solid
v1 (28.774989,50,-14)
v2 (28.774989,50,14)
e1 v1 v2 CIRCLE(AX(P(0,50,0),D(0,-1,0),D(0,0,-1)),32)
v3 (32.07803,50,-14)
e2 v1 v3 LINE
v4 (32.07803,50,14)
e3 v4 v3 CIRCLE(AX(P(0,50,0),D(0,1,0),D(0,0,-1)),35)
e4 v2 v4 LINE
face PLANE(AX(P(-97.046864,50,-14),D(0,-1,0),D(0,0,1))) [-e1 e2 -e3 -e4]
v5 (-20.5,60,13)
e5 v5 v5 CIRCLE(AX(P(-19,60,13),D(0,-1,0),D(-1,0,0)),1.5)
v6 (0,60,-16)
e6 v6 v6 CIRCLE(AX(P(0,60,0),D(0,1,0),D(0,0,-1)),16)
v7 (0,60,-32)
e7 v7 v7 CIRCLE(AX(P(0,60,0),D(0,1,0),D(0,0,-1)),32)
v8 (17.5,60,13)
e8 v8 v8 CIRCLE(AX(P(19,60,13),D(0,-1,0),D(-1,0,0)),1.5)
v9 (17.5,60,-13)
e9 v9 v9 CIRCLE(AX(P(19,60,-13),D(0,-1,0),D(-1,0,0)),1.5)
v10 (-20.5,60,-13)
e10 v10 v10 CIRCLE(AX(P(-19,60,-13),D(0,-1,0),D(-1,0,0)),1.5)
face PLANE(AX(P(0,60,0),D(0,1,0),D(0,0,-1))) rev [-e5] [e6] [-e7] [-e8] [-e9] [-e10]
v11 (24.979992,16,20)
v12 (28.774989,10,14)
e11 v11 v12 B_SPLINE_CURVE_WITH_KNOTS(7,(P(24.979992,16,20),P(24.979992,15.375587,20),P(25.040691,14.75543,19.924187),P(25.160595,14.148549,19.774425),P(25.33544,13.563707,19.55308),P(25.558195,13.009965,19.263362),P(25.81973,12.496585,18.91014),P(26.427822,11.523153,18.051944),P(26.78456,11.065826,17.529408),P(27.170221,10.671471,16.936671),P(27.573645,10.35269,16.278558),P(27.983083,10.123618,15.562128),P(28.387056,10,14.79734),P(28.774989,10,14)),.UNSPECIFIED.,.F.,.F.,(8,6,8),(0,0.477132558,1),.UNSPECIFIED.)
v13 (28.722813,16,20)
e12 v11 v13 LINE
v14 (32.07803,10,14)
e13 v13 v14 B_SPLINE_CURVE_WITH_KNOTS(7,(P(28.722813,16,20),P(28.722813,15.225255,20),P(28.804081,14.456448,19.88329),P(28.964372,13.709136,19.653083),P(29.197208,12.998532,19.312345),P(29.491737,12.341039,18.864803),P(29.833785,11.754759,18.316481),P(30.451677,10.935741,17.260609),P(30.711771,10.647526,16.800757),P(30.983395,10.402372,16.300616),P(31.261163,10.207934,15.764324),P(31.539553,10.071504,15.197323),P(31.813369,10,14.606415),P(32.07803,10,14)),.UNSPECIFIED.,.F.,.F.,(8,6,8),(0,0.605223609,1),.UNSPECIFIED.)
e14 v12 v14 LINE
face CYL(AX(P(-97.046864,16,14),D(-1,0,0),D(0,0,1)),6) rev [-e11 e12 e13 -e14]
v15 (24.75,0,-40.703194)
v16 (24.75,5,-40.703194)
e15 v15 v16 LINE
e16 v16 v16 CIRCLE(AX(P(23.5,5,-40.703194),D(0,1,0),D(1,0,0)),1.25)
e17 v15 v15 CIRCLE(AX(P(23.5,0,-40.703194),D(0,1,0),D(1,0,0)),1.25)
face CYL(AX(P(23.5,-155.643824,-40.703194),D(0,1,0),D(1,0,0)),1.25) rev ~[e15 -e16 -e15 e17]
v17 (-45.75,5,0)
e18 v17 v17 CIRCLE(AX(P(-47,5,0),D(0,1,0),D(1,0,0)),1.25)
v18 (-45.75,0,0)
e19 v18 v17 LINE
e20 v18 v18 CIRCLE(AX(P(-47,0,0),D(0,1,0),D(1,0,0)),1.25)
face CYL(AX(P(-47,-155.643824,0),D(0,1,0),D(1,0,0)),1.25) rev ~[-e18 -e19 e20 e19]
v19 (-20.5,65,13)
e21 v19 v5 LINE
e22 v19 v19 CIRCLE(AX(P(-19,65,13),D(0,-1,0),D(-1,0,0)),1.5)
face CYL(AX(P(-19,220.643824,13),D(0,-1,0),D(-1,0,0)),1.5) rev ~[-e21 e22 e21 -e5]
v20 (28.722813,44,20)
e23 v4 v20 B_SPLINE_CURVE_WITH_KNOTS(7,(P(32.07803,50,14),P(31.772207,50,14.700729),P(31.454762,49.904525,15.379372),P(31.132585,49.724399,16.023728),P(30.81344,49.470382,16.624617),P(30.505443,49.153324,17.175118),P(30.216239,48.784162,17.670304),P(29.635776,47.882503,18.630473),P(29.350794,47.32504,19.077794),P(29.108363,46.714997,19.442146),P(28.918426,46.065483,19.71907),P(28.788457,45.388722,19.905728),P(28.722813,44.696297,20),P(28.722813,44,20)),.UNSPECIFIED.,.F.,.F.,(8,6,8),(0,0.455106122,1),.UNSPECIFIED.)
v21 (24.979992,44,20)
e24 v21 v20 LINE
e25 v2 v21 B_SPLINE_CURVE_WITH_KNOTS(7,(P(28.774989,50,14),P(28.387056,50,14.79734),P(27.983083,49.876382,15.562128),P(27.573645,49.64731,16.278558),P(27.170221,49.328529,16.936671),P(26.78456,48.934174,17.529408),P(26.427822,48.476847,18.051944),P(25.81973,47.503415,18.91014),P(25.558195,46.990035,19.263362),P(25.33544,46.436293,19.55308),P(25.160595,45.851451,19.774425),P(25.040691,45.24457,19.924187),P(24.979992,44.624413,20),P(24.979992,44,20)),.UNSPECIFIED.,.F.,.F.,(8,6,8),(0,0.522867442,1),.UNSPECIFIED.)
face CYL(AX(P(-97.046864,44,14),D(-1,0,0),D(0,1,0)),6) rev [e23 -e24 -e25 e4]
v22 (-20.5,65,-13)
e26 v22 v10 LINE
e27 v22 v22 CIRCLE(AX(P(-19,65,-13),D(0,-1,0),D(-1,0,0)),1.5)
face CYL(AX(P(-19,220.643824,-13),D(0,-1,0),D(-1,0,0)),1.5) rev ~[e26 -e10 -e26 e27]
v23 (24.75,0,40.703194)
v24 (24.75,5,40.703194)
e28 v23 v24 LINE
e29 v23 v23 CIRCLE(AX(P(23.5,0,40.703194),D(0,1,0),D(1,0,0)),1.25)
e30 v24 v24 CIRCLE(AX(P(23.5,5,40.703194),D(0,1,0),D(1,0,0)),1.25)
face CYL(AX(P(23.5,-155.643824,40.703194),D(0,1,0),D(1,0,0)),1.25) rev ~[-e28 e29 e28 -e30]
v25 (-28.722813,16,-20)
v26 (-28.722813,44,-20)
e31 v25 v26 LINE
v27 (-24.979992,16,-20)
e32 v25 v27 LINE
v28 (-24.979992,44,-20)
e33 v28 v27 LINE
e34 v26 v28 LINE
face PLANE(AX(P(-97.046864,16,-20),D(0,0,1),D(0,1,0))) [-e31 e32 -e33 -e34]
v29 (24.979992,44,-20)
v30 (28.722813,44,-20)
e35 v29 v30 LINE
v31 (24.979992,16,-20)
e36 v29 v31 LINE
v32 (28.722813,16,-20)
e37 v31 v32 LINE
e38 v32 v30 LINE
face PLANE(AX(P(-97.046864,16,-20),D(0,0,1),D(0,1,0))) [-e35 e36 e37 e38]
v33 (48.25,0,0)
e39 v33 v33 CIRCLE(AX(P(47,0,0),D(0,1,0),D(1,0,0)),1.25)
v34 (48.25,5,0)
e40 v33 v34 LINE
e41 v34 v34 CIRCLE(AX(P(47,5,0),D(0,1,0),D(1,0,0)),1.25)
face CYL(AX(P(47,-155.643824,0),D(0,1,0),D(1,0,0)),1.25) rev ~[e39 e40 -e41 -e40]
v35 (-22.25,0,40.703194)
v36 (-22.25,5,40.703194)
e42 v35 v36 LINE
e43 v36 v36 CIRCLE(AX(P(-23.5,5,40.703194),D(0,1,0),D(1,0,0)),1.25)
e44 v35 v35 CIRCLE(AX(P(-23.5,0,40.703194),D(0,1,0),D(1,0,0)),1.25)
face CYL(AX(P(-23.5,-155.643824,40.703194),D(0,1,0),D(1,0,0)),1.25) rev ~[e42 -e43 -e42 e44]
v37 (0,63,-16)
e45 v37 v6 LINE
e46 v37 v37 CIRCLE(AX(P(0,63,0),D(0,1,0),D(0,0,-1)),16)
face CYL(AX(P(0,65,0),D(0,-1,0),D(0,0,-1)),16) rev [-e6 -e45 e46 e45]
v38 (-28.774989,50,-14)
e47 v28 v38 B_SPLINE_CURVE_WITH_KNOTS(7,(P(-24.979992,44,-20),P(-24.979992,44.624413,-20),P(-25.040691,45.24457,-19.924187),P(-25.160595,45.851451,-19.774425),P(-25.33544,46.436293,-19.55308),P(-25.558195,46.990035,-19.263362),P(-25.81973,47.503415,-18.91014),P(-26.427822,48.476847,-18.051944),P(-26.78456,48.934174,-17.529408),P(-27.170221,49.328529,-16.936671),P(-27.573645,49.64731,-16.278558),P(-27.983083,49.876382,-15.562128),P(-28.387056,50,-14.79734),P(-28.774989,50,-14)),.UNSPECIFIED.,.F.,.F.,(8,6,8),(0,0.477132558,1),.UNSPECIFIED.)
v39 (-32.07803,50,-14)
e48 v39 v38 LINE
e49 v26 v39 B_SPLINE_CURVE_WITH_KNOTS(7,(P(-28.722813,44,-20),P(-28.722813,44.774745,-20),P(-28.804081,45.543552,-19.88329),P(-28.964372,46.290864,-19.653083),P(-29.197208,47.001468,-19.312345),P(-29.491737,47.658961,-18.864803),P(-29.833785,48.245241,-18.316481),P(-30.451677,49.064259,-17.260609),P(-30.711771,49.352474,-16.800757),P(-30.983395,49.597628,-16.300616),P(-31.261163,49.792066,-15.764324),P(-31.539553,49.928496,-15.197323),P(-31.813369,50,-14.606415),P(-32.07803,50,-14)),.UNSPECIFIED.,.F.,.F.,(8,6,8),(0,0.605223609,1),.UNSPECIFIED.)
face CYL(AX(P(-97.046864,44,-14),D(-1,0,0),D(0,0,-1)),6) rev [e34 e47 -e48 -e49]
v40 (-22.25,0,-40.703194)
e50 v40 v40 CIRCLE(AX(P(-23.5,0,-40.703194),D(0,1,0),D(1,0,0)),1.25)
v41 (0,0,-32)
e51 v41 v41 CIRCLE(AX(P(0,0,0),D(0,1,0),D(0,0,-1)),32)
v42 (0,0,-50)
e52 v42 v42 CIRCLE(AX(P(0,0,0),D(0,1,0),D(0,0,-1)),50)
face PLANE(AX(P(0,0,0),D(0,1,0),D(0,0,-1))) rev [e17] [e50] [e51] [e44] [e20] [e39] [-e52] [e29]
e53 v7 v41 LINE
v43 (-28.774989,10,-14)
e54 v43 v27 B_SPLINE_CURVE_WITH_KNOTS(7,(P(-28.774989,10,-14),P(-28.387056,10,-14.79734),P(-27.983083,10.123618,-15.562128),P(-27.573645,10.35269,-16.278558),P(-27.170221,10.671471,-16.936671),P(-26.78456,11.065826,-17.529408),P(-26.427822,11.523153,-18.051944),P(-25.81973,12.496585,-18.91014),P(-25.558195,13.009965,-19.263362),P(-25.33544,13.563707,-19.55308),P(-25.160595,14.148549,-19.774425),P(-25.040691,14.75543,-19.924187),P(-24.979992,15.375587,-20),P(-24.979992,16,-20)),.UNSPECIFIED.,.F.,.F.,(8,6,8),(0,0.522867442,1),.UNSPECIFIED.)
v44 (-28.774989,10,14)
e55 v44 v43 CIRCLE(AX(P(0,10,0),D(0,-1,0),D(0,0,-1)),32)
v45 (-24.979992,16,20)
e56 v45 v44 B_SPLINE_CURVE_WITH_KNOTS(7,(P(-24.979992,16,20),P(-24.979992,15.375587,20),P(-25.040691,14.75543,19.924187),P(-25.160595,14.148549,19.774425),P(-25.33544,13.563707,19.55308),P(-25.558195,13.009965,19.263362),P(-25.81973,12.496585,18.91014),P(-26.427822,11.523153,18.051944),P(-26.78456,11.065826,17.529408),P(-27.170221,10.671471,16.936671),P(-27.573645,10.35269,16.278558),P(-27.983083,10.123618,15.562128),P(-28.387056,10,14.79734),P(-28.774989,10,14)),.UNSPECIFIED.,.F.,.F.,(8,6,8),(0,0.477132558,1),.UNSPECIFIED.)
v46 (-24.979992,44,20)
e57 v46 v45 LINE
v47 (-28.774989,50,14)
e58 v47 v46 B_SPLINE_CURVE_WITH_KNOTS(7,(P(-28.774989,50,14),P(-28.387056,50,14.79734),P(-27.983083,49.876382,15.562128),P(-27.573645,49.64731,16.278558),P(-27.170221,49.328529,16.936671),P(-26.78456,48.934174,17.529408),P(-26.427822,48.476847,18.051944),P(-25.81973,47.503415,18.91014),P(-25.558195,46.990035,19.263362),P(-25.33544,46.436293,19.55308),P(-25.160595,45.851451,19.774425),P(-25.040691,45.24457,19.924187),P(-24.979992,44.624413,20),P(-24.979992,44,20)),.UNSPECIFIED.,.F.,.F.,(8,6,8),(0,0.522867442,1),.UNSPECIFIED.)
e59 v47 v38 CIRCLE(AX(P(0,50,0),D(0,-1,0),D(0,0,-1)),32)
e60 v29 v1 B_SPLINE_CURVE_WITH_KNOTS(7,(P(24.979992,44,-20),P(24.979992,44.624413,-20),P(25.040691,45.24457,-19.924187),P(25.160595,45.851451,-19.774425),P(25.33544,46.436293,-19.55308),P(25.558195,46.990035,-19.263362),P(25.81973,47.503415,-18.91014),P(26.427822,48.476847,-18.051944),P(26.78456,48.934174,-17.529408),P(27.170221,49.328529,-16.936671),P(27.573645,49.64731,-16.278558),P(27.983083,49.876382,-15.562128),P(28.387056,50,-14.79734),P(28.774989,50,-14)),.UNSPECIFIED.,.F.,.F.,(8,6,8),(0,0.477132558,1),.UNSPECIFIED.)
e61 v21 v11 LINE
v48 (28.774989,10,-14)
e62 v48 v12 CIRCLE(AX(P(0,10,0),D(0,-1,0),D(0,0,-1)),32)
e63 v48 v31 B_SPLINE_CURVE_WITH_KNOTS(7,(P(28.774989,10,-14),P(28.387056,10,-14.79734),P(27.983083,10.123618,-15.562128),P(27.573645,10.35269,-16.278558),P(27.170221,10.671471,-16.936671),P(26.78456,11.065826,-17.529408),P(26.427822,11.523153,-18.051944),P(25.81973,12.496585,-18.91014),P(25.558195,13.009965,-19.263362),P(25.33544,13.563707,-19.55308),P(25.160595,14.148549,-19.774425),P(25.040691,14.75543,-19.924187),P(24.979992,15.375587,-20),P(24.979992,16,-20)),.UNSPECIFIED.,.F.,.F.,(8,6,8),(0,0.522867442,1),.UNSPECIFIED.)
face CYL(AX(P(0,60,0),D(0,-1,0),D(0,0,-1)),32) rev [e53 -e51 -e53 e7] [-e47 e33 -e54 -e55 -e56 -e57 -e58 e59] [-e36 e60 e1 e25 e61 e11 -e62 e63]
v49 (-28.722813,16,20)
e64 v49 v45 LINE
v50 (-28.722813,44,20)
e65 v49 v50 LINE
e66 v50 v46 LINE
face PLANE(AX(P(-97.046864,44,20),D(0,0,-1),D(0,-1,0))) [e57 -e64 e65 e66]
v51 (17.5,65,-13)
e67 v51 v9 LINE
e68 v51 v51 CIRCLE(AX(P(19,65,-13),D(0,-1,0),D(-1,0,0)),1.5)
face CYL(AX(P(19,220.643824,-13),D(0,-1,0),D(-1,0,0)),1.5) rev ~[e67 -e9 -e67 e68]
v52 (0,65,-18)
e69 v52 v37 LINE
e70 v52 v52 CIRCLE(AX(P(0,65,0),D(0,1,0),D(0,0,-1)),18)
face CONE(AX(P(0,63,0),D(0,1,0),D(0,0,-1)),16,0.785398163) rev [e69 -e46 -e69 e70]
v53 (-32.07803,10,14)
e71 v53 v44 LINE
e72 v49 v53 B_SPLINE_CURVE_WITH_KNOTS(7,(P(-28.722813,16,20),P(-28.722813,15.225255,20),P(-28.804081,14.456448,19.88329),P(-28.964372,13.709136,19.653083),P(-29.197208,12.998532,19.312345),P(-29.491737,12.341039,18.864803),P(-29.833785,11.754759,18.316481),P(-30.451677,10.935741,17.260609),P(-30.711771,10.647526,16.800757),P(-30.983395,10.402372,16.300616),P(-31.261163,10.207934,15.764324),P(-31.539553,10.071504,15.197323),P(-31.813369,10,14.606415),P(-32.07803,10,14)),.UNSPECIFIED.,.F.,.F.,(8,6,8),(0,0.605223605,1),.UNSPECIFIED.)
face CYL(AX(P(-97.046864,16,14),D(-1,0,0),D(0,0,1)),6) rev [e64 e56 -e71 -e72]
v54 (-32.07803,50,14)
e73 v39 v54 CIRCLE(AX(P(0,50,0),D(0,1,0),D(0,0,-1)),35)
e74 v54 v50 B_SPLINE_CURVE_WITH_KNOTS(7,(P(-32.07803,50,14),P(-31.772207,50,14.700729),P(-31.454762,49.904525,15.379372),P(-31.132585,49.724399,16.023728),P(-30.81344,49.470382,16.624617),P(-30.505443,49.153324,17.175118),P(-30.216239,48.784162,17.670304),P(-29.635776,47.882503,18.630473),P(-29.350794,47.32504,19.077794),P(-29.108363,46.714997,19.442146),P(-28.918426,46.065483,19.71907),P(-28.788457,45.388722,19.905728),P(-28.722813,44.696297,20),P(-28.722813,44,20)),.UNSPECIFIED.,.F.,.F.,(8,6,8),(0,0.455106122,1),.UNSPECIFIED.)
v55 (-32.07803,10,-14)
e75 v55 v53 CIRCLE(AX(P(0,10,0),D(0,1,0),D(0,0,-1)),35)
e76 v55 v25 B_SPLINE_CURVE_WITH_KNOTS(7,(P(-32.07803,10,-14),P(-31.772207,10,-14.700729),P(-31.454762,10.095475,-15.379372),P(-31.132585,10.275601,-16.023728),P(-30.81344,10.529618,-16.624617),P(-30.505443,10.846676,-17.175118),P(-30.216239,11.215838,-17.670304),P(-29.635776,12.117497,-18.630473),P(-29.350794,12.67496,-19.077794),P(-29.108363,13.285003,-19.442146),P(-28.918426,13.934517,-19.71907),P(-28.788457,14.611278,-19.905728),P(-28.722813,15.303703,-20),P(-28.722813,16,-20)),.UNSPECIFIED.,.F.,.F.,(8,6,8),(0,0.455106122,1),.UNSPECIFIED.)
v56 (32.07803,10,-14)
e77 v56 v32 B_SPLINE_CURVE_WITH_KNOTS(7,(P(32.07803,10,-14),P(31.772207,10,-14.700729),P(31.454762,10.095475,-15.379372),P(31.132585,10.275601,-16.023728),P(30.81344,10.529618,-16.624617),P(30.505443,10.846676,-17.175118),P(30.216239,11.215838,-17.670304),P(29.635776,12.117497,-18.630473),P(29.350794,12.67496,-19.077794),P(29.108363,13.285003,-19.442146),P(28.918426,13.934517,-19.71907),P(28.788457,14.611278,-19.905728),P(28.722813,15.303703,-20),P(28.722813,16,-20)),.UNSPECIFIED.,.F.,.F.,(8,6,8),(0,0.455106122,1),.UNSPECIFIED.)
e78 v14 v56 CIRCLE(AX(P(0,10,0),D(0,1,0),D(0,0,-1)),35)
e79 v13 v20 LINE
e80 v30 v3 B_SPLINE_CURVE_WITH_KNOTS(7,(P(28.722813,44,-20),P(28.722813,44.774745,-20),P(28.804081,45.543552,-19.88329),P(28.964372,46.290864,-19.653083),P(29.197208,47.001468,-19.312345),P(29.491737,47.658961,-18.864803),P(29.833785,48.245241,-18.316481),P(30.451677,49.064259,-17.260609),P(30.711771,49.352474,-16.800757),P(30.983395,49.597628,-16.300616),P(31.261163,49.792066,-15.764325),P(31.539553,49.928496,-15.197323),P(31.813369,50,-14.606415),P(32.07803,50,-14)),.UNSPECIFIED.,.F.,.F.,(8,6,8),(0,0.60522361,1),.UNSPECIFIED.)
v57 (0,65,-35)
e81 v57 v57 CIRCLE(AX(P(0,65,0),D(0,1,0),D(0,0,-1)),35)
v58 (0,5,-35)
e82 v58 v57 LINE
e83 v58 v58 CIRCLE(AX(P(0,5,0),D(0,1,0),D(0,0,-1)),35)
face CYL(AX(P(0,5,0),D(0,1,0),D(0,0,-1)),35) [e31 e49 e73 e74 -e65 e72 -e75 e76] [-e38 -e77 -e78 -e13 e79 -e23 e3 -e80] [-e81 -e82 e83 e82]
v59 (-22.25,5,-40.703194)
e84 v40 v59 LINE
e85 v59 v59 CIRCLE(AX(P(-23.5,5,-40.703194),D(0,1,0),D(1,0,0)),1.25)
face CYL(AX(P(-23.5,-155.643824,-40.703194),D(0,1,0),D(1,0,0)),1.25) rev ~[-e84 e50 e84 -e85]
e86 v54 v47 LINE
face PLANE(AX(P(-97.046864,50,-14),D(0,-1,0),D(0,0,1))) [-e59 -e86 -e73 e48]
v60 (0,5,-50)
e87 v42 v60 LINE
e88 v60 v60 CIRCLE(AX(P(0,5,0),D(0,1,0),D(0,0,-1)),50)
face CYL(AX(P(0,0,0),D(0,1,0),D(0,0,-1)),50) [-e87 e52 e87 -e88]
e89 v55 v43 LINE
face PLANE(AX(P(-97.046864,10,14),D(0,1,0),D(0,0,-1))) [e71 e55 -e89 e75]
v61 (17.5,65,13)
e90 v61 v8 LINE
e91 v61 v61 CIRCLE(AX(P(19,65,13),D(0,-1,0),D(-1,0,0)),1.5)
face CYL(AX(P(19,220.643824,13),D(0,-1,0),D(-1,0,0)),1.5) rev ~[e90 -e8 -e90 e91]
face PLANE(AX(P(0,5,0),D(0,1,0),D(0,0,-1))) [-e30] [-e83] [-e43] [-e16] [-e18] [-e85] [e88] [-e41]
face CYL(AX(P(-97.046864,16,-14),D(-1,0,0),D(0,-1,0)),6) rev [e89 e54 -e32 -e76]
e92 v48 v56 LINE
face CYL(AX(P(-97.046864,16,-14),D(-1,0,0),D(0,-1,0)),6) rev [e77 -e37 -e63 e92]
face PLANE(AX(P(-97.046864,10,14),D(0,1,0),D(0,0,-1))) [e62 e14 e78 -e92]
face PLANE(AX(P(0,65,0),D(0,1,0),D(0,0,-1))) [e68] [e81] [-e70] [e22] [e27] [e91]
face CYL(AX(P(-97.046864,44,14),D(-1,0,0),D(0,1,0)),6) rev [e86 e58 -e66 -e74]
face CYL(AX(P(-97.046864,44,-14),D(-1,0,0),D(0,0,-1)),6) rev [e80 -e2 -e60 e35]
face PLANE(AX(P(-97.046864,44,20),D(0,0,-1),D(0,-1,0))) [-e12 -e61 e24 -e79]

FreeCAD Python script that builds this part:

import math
import FreeCAD as App
import Part
import Sketcher


def edges_at(feature, points):
    """Names of the edges that pass closest to the given points."""
    edges = feature.Shape.Edges
    near = lambda p: min(range(len(edges)), key=lambda i: edges[i].distToShape(Part.Vertex(*p))[0])
    return sorted({f"Edge{near(p) + 1}" for p in points})

doc = App.newDocument("Part")
body = doc.addObject("PartDesign::Body", "Body")

# Sketch on YZ plane
sketch1 = doc.addObject("Sketcher::SketchObject", "Sketch")
body.addObject(sketch1)
sketch1.AttachmentSupport = (doc.YZ_Plane, [""])
sketch1.MapMode = "FlatFace"
sketch1.addGeometry([
    Part.LineSegment(App.Vector(0, -32, 0), App.Vector(0, -50, 0)),  # 0
    Part.LineSegment(App.Vector(0, -50, 0), App.Vector(5, -50, 0)),  # 1
    Part.LineSegment(App.Vector(5, -50, 0), App.Vector(5, -35, 0)),  # 2
    Part.LineSegment(App.Vector(5, -35, 0), App.Vector(65, -35, 0)),  # 3
    Part.LineSegment(App.Vector(65, -35, 0), App.Vector(65, -16, 0)),  # 4
    Part.LineSegment(App.Vector(65, -16, 0), App.Vector(60, -16, 0)),  # 5
    Part.LineSegment(App.Vector(60, -16, 0), App.Vector(60, -32, 0)),  # 6
    Part.LineSegment(App.Vector(60, -32, 0), App.Vector(0, -32, 0)),  # 7
], False)
sketch1.addConstraint([
    Sketcher.Constraint("Coincident", 0, 2, 1, 1),
    Sketcher.Constraint("Coincident", 1, 2, 2, 1),
    Sketcher.Constraint("Coincident", 2, 2, 3, 1),
    Sketcher.Constraint("Coincident", 3, 2, 4, 1),
    Sketcher.Constraint("Coincident", 4, 2, 5, 1),
    Sketcher.Constraint("Coincident", 5, 2, 6, 1),
    Sketcher.Constraint("Coincident", 6, 2, 7, 1),
    Sketcher.Constraint("Coincident", 7, 2, 0, 1),
    Sketcher.Constraint("Vertical", 0),
    Sketcher.Constraint("Horizontal", 1),
    Sketcher.Constraint("Vertical", 2),
    Sketcher.Constraint("Horizontal", 3),
    Sketcher.Constraint("Vertical", 4),
    Sketcher.Constraint("Horizontal", 5),
    Sketcher.Constraint("Vertical", 6),
    Sketcher.Constraint("Horizontal", 7),
    Sketcher.Constraint("PointOnObject", 0, 2, -2),
    Sketcher.Constraint("Equal", 1, 5),
    Sketcher.Constraint("DistanceX", 1, 1, 1, 2, 5.0),
    Sketcher.Constraint("DistanceX", 3, 1, 3, 2, 60.0),
    Sketcher.Constraint("DistanceY", 0, 2, 0, 1, 18.0),
    Sketcher.Constraint("DistanceY", 2, 1, 2, 2, 15.0),
    Sketcher.Constraint("DistanceY", 4, 1, 4, 2, 19.0),
    Sketcher.Constraint("DistanceY", 0, 2, -1, 1, 50.0),
])
revolution = doc.addObject("PartDesign::Revolution", "Revolution")
body.addObject(revolution)
revolution.Profile = sketch1
revolution.ReferenceAxis = (sketch1, ["H_Axis"])
revolution.Angle = 360
doc.recompute()

chamfer = doc.addObject("PartDesign::Chamfer", "Chamfer")
body.addObject(chamfer)
chamfer.Base = (revolution, edges_at(revolution, [(0, 65, 16)]))
chamfer.Size = 2

# Sketch on XZ plane
sketch2 = doc.addObject("Sketcher::SketchObject", "Sketch001")
body.addObject(sketch2)
sketch2.AttachmentSupport = (doc.XZ_Plane, [""])
sketch2.MapMode = "FlatFace"
sketch2.AttachmentOffset = App.Placement(App.Vector(0, 0, -65), App.Rotation())
sketch2.addGeometry([
    Part.Circle(App.Vector(19, 13, 0), App.Vector(0, 0, 1), 1.5),
    Part.Circle(App.Vector(-19, -13, 0), App.Vector(0, 0, 1), 1.5),
    Part.Circle(App.Vector(-19, 13, 0), App.Vector(0, 0, 1), 1.5),
    Part.Circle(App.Vector(19, -13, 0), App.Vector(0, 0, 1), 1.5),
], False)
sketch2.addConstraint([
    Sketcher.Constraint("Equal", 0, 1),
    Sketcher.Constraint("Equal", 1, 2),
    Sketcher.Constraint("Equal", 2, 3),
    Sketcher.Constraint("Symmetric", 0, 3, 1, 3, -1, 1),
    Sketcher.Constraint("Symmetric", 2, 3, 3, 3, -1, 1),
    Sketcher.Constraint("Symmetric", 0, 3, 2, 3, -2),
    Sketcher.Constraint("Diameter", 0, 3.0),
    Sketcher.Constraint("DistanceX", -1, 1, 0, 3, 19.0),
    Sketcher.Constraint("DistanceY", -1, 1, 0, 3, 13.0),
])
doc.recompute()
hole = doc.addObject("PartDesign::Hole", "Hole")
body.addObject(hole)
hole.Profile = sketch2
hole.ThreadType = "None"
hole.Diameter = 3
hole.DepthType = "ThroughAll"
hole.Reversed = True

# Sketch on YZ plane
sketch3 = doc.addObject("Sketcher::SketchObject", "Sketch002")
body.addObject(sketch3)
sketch3.AttachmentSupport = (doc.YZ_Plane, [""])
sketch3.MapMode = "FlatFace"
sketch3.addGeometry([
    Part.LineSegment(App.Vector(10, 14, 0), App.Vector(10, -14, 0)),  # 0
    Part.ArcOfCircle(Part.Circle(App.Vector(16, -14, 0), App.Vector(0, 0, 1), 6), math.radians(180), math.radians(270)),  # 1
    Part.LineSegment(App.Vector(16, -20, 0), App.Vector(44, -20, 0)),  # 2
    Part.ArcOfCircle(Part.Circle(App.Vector(44, -14, 0), App.Vector(0, 0, 1), 6), math.radians(-90), math.radians(0)),  # 3
    Part.LineSegment(App.Vector(50, -14, 0), App.Vector(50, 14, 0)),  # 4
    Part.ArcOfCircle(Part.Circle(App.Vector(44, 14, 0), App.Vector(0, 0, 1), 6), math.radians(0), math.radians(90)),  # 5
    Part.LineSegment(App.Vector(44, 20, 0), App.Vector(16, 20, 0)),  # 6
    Part.ArcOfCircle(Part.Circle(App.Vector(16, 14, 0), App.Vector(0, 0, 1), 6), math.radians(90), math.radians(180)),  # 7
], False)
sketch3.addConstraint([
    Sketcher.Constraint("Tangent", 0, 2, 1, 1),
    Sketcher.Constraint("Tangent", 1, 2, 2, 1),
    Sketcher.Constraint("Tangent", 2, 2, 3, 1),
    Sketcher.Constraint("Tangent", 3, 2, 4, 1),
    Sketcher.Constraint("Tangent", 4, 2, 5, 1),
    Sketcher.Constraint("Tangent", 5, 2, 6, 1),
    Sketcher.Constraint("Tangent", 6, 2, 7, 1),
    Sketcher.Constraint("Tangent", 7, 2, 0, 1),
    Sketcher.Constraint("Vertical", 0),
    Sketcher.Constraint("Horizontal", 2),
    Sketcher.Constraint("Vertical", 4),
    Sketcher.Constraint("Horizontal", 6),
    Sketcher.Constraint("Equal", 1, 3),
    Sketcher.Constraint("Equal", 3, 5),
    Sketcher.Constraint("Equal", 5, 7),
    Sketcher.Constraint("Equal", 6, 0),
    Sketcher.Constraint("Radius", 1, 6.0),
    Sketcher.Constraint("DistanceX", 2, 1, 2, 2, 28.0),
    Sketcher.Constraint("DistanceX", -1, 1, 1, 3, 16.0),
    Sketcher.Constraint("DistanceY", 1, 3, -1, 1, 14.0),
])
pocket1 = doc.addObject("PartDesign::Pocket", "Pocket")
body.addObject(pocket1)
pocket1.Profile = sketch3
pocket1.Type = "ThroughAll"
pocket1.Midplane = True

# Sketch on XZ plane
sketch4 = doc.addObject("Sketcher::SketchObject", "Sketch003")
body.addObject(sketch4)
sketch4.AttachmentSupport = (doc.XZ_Plane, [""])
sketch4.MapMode = "FlatFace"
sketch4.addGeometry([
    Part.Circle(App.Vector(-47, 0, 0), App.Vector(0, 0, 1), 1.2),  # 0
    Part.Circle(App.Vector(-23.5, 40.7, 0), App.Vector(0, 0, 1), 1.2),  # 1
    Part.Circle(App.Vector(23.5, 40.7, 0), App.Vector(0, 0, 1), 1.2),  # 2
    Part.Circle(App.Vector(47, 0, 0), App.Vector(0, 0, 1), 1.2),  # 3
    Part.Circle(App.Vector(23.5, -40.7, 0), App.Vector(0, 0, 1), 1.2),  # 4
    Part.Circle(App.Vector(-23.5, -40.7, 0), App.Vector(0, 0, 1), 1.2),  # 5
], False)
sketch4.addConstraint([
    Sketcher.Constraint("Equal", 0, 1),
    Sketcher.Constraint("Equal", 1, 2),
    Sketcher.Constraint("Equal", 2, 3),
    Sketcher.Constraint("Equal", 3, 4),
    Sketcher.Constraint("Equal", 4, 5),
    Sketcher.Constraint("Symmetric", 0, 3, 3, 3, -1, 1),
    Sketcher.Constraint("Symmetric", 1, 3, 4, 3, -1, 1),
    Sketcher.Constraint("Symmetric", 2, 3, 5, 3, -1, 1),
    Sketcher.Constraint("Symmetric", 1, 3, 2, 3, -2),
    Sketcher.Constraint("PointOnObject", 0, 3, -1),
    Sketcher.Constraint("Diameter", 0, 2.5),
    Sketcher.Constraint("DistanceX", 0, 3, -1, 1, 47.0),
    Sketcher.Constraint("DistanceX", 1, 3, 2, 3, 47.0),
    Sketcher.Constraint("DistanceY", -1, 1, 1, 3, 40.703194),
])
doc.recompute()
hole2 = doc.addObject("PartDesign::Hole", "Hole001")
body.addObject(hole2)
hole2.Profile = sketch4
hole2.ThreadType = "None"
hole2.Diameter = 2.5
hole2.DepthType = "ThroughAll"

doc.recompute()
